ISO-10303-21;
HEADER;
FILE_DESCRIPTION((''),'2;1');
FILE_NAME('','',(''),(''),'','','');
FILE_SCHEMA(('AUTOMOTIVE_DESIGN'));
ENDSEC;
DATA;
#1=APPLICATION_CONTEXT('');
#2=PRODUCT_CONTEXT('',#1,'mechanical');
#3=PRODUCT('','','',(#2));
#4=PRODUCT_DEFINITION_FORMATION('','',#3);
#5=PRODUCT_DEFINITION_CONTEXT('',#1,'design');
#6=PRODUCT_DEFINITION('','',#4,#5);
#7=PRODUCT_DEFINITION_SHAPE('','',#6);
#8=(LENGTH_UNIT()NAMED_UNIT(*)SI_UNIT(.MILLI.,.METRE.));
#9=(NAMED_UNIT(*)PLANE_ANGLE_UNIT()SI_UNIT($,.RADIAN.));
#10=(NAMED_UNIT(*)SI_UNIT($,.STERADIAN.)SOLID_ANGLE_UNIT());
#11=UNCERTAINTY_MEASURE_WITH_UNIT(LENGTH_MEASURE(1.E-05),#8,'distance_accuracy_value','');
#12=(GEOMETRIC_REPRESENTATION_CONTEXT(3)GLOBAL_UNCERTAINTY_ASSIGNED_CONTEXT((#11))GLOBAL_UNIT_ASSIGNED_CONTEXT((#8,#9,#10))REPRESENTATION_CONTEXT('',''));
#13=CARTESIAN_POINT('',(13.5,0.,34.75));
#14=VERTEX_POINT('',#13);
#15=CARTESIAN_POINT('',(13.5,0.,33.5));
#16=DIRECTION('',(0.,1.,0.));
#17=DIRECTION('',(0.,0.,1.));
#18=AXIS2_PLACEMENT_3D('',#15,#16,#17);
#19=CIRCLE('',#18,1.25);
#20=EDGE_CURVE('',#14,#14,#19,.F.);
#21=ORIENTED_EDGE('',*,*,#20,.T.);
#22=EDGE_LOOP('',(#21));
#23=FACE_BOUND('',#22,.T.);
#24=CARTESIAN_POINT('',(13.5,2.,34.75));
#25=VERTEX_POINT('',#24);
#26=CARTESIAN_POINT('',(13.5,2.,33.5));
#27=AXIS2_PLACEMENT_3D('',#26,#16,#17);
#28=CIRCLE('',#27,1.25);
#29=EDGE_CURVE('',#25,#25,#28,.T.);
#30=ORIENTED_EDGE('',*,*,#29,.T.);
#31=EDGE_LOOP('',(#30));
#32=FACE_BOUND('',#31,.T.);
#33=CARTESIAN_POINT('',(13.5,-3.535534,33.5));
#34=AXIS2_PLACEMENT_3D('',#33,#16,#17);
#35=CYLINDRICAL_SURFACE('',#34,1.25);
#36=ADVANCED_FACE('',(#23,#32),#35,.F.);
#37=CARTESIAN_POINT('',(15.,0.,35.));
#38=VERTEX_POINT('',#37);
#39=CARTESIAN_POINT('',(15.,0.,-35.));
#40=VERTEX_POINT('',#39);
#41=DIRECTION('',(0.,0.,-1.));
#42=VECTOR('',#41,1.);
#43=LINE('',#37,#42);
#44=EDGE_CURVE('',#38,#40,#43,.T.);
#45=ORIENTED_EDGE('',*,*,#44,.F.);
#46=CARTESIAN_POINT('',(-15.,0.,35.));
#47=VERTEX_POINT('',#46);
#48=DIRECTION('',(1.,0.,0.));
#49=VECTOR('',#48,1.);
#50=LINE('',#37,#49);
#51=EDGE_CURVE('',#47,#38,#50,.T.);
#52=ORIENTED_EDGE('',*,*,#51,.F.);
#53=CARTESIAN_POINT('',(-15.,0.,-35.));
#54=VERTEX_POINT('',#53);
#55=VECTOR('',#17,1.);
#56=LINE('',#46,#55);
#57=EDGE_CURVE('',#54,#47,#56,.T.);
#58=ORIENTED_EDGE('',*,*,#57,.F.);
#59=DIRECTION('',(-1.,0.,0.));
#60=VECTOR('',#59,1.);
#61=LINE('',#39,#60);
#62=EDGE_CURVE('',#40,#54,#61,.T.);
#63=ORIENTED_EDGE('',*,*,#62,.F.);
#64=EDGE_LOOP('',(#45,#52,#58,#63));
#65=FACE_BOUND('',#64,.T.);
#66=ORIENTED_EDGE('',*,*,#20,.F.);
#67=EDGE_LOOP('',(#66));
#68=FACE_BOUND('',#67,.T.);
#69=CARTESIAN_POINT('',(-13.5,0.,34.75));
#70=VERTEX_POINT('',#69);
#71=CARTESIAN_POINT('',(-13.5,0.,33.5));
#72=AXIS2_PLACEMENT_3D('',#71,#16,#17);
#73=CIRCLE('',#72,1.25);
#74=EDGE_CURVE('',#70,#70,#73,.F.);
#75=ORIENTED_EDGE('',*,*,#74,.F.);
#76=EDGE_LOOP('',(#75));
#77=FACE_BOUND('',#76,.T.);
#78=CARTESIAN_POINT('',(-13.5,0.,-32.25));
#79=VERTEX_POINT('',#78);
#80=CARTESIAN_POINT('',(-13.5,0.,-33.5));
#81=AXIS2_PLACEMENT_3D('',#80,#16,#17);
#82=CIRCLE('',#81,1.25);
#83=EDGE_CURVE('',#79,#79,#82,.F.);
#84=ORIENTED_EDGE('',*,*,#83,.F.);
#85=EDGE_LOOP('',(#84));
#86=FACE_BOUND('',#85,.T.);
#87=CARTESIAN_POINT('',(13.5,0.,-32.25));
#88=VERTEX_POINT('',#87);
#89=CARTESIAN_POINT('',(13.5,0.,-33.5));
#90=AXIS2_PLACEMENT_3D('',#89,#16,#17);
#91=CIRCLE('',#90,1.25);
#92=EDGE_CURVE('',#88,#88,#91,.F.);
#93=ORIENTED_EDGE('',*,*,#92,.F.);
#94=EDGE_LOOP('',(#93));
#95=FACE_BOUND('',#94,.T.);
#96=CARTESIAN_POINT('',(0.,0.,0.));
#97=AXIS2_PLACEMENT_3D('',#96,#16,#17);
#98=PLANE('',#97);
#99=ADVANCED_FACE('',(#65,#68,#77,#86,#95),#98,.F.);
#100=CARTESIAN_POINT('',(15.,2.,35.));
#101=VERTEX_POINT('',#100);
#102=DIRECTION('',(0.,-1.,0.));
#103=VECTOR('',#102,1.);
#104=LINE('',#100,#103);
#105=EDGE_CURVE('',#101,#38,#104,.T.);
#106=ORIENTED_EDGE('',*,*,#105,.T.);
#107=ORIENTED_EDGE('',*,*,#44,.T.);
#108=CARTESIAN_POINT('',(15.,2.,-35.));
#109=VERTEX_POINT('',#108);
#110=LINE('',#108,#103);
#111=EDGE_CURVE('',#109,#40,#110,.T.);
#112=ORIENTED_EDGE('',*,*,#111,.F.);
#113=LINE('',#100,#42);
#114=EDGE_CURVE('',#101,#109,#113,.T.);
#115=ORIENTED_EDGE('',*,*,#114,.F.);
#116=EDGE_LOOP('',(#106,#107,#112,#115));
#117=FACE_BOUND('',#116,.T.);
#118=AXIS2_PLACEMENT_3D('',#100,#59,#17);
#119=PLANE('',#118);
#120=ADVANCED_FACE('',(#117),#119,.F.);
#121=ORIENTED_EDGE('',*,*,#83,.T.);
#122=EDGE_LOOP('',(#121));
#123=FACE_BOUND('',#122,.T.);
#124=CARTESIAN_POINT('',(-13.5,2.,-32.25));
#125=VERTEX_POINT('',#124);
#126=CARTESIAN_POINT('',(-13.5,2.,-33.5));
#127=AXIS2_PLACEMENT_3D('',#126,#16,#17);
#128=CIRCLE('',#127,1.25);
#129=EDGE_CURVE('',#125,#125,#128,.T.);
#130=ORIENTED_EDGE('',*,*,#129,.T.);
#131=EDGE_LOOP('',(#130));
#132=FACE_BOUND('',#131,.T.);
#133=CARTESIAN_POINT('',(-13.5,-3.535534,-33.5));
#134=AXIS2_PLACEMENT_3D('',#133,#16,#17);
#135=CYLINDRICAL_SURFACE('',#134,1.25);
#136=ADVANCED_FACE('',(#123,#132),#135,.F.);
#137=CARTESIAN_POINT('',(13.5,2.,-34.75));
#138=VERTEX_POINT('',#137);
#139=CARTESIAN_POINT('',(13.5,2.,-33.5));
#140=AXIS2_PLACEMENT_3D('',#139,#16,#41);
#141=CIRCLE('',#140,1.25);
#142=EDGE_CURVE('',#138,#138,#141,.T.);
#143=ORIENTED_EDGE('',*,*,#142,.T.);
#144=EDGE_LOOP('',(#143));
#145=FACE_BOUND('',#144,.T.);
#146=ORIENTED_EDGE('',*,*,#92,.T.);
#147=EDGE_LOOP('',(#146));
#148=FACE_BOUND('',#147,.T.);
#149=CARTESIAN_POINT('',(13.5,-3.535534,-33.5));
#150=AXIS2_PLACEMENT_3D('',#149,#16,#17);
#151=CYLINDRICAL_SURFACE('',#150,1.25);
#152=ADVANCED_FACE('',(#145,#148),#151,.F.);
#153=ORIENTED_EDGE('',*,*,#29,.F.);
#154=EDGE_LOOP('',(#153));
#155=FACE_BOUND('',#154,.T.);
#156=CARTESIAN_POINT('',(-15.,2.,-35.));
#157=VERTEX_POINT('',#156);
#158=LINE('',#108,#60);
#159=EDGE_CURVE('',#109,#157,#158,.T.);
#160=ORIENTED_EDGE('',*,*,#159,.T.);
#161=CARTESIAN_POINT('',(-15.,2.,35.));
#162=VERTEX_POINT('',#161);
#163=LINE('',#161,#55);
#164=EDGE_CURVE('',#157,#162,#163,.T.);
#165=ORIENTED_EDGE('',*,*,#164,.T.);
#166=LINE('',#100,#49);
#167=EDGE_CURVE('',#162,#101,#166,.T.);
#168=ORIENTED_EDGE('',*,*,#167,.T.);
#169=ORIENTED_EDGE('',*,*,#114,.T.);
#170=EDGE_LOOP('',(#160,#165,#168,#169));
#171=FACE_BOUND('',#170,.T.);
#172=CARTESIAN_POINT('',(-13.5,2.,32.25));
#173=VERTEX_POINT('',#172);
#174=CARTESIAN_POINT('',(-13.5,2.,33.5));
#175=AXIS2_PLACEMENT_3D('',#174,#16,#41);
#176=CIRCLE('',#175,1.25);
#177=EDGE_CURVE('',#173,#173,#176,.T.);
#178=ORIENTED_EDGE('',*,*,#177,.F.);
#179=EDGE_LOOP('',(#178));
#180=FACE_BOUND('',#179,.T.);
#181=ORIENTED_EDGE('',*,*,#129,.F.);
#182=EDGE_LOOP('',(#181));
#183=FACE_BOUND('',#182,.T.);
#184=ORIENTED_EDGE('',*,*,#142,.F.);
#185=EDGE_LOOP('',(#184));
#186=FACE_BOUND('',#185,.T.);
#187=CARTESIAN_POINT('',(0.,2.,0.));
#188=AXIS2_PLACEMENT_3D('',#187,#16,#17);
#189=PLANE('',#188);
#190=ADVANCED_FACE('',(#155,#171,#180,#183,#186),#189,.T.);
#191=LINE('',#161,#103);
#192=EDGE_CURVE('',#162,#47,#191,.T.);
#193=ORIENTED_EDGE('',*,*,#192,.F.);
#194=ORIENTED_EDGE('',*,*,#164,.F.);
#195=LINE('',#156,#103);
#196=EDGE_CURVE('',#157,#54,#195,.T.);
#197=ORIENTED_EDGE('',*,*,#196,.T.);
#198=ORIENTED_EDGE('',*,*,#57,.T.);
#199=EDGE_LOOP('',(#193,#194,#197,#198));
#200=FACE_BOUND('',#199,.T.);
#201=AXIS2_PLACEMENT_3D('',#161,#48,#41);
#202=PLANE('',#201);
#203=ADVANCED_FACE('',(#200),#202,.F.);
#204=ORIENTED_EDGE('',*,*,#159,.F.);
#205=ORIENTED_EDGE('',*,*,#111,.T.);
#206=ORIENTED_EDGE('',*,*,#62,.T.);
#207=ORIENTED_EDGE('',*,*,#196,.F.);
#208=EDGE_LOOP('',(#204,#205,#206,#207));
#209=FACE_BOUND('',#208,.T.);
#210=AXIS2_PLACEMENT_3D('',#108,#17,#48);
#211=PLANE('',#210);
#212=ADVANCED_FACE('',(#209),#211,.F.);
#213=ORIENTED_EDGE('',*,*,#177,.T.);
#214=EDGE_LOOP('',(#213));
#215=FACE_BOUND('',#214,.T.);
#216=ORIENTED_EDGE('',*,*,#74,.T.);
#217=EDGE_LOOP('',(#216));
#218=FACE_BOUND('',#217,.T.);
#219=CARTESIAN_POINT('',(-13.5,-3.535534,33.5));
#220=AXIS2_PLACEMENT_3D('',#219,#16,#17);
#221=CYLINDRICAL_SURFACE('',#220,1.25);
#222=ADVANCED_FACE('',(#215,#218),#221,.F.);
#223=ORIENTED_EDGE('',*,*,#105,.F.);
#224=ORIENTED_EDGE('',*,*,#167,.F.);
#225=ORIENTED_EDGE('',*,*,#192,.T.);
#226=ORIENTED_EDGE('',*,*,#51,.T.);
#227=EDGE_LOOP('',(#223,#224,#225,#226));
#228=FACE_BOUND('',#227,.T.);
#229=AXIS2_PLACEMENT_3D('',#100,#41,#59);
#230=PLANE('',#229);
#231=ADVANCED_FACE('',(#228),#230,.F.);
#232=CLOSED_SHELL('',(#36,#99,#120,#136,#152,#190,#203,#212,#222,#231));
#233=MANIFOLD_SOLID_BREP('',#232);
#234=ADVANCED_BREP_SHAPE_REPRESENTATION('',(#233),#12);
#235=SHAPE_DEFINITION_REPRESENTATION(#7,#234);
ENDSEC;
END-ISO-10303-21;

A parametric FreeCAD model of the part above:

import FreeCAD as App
import Part
import Sketcher
from FreeCAD import Vector
Q = App.Units.Quantity

doc = App.newDocument("Part")
body = doc.addObject("PartDesign::Body", "Body")

# Sketch on XZ plane
sketch1 = doc.addObject("Sketcher::SketchObject", "Sketch")
body.addObject(sketch1)
sketch1.AttachmentSupport = (doc.XZ_Plane, [""])
sketch1.MapMode = "FlatFace"
sketch1.addGeometry(Part.LineSegment(Vector(-15, -35, 0), Vector(-15, 35, 0)), False)
sketch1.addGeometry(Part.LineSegment(Vector(-15, 35, 0), Vector(15, 35, 0)), False)
sketch1.addGeometry(Part.LineSegment(Vector(15, 35, 0), Vector(15, -35, 0)), False)
sketch1.addGeometry(Part.LineSegment(Vector(15, -35, 0), Vector(-15, -35, 0)), False)
sketch1.addConstraint(Sketcher.Constraint("Coincident", 0, 2, 1, 1))
sketch1.addConstraint(Sketcher.Constraint("Coincident", 1, 2, 2, 1))
sketch1.addConstraint(Sketcher.Constraint("Coincident", 2, 2, 3, 1))
sketch1.addConstraint(Sketcher.Constraint("Coincident", 3, 2, 0, 1))
sketch1.addConstraint(Sketcher.Constraint("Vertical", 0))
sketch1.addConstraint(Sketcher.Constraint("Horizontal", 1))
sketch1.addConstraint(Sketcher.Constraint("Vertical", 2))
sketch1.addConstraint(Sketcher.Constraint("Horizontal", 3))
sketch1.addConstraint(Sketcher.Constraint("Symmetric", 0, 2, 2, 2, -1, 1))
sketch1.addConstraint(Sketcher.Constraint("DistanceX", 1, 1, 1, 2, Q("30 mm")))
sketch1.addConstraint(Sketcher.Constraint("DistanceY", 0, 1, 0, 2, Q("70 mm")))
pad1 = doc.addObject("PartDesign::Pad", "Pad")
body.addObject(pad1)
pad1.Profile = sketch1
pad1.Length = 2
pad1.Reversed = True

# Sketch on XZ plane
sketch2 = doc.addObject("Sketcher::SketchObject", "Sketch001")
body.addObject(sketch2)
sketch2.AttachmentSupport = (doc.XZ_Plane, [""])
sketch2.MapMode = "FlatFace"
sketch2.AttachmentOffset = App.Placement(Vector(0, 0, -2), App.Rotation())
sketch2.addGeometry(Part.Circle(Vector(-13.5, -33.5, 0), Vector(0, 0, 1), 1.2), False)
sketch2.addGeometry(Part.Circle(Vector(13.5, -33.5, 0), Vector(0, 0, 1), 1.2), False)
sketch2.addGeometry(Part.Circle(Vector(13.5, 33.5, 0), Vector(0, 0, 1), 1.2), False)
sketch2.addGeometry(Part.Circle(Vector(-13.5, 33.5, 0), Vector(0, 0, 1), 1.2), False)
sketch2.addConstraint(Sketcher.Constraint("Equal", 0, 1))
sketch2.addConstraint(Sketcher.Constraint("Equal", 1, 2))
sketch2.addConstraint(Sketcher.Constraint("Equal", 2, 3))
sketch2.addConstraint(Sketcher.Constraint("Symmetric", 0, 3, 2, 3, -1, 1))
sketch2.addConstraint(Sketcher.Constraint("Symmetric", 1, 3, 3, 3, -1, 1))
sketch2.addConstraint(Sketcher.Constraint("Symmetric", 0, 3, 1, 3, -2))
sketch2.addConstraint(Sketcher.Constraint("Diameter", 0, Q("2.5 mm")))
sketch2.addConstraint(Sketcher.Constraint("DistanceX", 0, 3, 1, 3, Q("27 mm")))
sketch2.addConstraint(Sketcher.Constraint("DistanceY", 1, 3, 2, 3, Q("67 mm")))
pocket1 = doc.addObject("PartDesign::Pocket", "Pocket")
body.addObject(pocket1)
pocket1.Profile = sketch2
pocket1.Length = 2
pocket1.Reversed = True

doc.recompute()
